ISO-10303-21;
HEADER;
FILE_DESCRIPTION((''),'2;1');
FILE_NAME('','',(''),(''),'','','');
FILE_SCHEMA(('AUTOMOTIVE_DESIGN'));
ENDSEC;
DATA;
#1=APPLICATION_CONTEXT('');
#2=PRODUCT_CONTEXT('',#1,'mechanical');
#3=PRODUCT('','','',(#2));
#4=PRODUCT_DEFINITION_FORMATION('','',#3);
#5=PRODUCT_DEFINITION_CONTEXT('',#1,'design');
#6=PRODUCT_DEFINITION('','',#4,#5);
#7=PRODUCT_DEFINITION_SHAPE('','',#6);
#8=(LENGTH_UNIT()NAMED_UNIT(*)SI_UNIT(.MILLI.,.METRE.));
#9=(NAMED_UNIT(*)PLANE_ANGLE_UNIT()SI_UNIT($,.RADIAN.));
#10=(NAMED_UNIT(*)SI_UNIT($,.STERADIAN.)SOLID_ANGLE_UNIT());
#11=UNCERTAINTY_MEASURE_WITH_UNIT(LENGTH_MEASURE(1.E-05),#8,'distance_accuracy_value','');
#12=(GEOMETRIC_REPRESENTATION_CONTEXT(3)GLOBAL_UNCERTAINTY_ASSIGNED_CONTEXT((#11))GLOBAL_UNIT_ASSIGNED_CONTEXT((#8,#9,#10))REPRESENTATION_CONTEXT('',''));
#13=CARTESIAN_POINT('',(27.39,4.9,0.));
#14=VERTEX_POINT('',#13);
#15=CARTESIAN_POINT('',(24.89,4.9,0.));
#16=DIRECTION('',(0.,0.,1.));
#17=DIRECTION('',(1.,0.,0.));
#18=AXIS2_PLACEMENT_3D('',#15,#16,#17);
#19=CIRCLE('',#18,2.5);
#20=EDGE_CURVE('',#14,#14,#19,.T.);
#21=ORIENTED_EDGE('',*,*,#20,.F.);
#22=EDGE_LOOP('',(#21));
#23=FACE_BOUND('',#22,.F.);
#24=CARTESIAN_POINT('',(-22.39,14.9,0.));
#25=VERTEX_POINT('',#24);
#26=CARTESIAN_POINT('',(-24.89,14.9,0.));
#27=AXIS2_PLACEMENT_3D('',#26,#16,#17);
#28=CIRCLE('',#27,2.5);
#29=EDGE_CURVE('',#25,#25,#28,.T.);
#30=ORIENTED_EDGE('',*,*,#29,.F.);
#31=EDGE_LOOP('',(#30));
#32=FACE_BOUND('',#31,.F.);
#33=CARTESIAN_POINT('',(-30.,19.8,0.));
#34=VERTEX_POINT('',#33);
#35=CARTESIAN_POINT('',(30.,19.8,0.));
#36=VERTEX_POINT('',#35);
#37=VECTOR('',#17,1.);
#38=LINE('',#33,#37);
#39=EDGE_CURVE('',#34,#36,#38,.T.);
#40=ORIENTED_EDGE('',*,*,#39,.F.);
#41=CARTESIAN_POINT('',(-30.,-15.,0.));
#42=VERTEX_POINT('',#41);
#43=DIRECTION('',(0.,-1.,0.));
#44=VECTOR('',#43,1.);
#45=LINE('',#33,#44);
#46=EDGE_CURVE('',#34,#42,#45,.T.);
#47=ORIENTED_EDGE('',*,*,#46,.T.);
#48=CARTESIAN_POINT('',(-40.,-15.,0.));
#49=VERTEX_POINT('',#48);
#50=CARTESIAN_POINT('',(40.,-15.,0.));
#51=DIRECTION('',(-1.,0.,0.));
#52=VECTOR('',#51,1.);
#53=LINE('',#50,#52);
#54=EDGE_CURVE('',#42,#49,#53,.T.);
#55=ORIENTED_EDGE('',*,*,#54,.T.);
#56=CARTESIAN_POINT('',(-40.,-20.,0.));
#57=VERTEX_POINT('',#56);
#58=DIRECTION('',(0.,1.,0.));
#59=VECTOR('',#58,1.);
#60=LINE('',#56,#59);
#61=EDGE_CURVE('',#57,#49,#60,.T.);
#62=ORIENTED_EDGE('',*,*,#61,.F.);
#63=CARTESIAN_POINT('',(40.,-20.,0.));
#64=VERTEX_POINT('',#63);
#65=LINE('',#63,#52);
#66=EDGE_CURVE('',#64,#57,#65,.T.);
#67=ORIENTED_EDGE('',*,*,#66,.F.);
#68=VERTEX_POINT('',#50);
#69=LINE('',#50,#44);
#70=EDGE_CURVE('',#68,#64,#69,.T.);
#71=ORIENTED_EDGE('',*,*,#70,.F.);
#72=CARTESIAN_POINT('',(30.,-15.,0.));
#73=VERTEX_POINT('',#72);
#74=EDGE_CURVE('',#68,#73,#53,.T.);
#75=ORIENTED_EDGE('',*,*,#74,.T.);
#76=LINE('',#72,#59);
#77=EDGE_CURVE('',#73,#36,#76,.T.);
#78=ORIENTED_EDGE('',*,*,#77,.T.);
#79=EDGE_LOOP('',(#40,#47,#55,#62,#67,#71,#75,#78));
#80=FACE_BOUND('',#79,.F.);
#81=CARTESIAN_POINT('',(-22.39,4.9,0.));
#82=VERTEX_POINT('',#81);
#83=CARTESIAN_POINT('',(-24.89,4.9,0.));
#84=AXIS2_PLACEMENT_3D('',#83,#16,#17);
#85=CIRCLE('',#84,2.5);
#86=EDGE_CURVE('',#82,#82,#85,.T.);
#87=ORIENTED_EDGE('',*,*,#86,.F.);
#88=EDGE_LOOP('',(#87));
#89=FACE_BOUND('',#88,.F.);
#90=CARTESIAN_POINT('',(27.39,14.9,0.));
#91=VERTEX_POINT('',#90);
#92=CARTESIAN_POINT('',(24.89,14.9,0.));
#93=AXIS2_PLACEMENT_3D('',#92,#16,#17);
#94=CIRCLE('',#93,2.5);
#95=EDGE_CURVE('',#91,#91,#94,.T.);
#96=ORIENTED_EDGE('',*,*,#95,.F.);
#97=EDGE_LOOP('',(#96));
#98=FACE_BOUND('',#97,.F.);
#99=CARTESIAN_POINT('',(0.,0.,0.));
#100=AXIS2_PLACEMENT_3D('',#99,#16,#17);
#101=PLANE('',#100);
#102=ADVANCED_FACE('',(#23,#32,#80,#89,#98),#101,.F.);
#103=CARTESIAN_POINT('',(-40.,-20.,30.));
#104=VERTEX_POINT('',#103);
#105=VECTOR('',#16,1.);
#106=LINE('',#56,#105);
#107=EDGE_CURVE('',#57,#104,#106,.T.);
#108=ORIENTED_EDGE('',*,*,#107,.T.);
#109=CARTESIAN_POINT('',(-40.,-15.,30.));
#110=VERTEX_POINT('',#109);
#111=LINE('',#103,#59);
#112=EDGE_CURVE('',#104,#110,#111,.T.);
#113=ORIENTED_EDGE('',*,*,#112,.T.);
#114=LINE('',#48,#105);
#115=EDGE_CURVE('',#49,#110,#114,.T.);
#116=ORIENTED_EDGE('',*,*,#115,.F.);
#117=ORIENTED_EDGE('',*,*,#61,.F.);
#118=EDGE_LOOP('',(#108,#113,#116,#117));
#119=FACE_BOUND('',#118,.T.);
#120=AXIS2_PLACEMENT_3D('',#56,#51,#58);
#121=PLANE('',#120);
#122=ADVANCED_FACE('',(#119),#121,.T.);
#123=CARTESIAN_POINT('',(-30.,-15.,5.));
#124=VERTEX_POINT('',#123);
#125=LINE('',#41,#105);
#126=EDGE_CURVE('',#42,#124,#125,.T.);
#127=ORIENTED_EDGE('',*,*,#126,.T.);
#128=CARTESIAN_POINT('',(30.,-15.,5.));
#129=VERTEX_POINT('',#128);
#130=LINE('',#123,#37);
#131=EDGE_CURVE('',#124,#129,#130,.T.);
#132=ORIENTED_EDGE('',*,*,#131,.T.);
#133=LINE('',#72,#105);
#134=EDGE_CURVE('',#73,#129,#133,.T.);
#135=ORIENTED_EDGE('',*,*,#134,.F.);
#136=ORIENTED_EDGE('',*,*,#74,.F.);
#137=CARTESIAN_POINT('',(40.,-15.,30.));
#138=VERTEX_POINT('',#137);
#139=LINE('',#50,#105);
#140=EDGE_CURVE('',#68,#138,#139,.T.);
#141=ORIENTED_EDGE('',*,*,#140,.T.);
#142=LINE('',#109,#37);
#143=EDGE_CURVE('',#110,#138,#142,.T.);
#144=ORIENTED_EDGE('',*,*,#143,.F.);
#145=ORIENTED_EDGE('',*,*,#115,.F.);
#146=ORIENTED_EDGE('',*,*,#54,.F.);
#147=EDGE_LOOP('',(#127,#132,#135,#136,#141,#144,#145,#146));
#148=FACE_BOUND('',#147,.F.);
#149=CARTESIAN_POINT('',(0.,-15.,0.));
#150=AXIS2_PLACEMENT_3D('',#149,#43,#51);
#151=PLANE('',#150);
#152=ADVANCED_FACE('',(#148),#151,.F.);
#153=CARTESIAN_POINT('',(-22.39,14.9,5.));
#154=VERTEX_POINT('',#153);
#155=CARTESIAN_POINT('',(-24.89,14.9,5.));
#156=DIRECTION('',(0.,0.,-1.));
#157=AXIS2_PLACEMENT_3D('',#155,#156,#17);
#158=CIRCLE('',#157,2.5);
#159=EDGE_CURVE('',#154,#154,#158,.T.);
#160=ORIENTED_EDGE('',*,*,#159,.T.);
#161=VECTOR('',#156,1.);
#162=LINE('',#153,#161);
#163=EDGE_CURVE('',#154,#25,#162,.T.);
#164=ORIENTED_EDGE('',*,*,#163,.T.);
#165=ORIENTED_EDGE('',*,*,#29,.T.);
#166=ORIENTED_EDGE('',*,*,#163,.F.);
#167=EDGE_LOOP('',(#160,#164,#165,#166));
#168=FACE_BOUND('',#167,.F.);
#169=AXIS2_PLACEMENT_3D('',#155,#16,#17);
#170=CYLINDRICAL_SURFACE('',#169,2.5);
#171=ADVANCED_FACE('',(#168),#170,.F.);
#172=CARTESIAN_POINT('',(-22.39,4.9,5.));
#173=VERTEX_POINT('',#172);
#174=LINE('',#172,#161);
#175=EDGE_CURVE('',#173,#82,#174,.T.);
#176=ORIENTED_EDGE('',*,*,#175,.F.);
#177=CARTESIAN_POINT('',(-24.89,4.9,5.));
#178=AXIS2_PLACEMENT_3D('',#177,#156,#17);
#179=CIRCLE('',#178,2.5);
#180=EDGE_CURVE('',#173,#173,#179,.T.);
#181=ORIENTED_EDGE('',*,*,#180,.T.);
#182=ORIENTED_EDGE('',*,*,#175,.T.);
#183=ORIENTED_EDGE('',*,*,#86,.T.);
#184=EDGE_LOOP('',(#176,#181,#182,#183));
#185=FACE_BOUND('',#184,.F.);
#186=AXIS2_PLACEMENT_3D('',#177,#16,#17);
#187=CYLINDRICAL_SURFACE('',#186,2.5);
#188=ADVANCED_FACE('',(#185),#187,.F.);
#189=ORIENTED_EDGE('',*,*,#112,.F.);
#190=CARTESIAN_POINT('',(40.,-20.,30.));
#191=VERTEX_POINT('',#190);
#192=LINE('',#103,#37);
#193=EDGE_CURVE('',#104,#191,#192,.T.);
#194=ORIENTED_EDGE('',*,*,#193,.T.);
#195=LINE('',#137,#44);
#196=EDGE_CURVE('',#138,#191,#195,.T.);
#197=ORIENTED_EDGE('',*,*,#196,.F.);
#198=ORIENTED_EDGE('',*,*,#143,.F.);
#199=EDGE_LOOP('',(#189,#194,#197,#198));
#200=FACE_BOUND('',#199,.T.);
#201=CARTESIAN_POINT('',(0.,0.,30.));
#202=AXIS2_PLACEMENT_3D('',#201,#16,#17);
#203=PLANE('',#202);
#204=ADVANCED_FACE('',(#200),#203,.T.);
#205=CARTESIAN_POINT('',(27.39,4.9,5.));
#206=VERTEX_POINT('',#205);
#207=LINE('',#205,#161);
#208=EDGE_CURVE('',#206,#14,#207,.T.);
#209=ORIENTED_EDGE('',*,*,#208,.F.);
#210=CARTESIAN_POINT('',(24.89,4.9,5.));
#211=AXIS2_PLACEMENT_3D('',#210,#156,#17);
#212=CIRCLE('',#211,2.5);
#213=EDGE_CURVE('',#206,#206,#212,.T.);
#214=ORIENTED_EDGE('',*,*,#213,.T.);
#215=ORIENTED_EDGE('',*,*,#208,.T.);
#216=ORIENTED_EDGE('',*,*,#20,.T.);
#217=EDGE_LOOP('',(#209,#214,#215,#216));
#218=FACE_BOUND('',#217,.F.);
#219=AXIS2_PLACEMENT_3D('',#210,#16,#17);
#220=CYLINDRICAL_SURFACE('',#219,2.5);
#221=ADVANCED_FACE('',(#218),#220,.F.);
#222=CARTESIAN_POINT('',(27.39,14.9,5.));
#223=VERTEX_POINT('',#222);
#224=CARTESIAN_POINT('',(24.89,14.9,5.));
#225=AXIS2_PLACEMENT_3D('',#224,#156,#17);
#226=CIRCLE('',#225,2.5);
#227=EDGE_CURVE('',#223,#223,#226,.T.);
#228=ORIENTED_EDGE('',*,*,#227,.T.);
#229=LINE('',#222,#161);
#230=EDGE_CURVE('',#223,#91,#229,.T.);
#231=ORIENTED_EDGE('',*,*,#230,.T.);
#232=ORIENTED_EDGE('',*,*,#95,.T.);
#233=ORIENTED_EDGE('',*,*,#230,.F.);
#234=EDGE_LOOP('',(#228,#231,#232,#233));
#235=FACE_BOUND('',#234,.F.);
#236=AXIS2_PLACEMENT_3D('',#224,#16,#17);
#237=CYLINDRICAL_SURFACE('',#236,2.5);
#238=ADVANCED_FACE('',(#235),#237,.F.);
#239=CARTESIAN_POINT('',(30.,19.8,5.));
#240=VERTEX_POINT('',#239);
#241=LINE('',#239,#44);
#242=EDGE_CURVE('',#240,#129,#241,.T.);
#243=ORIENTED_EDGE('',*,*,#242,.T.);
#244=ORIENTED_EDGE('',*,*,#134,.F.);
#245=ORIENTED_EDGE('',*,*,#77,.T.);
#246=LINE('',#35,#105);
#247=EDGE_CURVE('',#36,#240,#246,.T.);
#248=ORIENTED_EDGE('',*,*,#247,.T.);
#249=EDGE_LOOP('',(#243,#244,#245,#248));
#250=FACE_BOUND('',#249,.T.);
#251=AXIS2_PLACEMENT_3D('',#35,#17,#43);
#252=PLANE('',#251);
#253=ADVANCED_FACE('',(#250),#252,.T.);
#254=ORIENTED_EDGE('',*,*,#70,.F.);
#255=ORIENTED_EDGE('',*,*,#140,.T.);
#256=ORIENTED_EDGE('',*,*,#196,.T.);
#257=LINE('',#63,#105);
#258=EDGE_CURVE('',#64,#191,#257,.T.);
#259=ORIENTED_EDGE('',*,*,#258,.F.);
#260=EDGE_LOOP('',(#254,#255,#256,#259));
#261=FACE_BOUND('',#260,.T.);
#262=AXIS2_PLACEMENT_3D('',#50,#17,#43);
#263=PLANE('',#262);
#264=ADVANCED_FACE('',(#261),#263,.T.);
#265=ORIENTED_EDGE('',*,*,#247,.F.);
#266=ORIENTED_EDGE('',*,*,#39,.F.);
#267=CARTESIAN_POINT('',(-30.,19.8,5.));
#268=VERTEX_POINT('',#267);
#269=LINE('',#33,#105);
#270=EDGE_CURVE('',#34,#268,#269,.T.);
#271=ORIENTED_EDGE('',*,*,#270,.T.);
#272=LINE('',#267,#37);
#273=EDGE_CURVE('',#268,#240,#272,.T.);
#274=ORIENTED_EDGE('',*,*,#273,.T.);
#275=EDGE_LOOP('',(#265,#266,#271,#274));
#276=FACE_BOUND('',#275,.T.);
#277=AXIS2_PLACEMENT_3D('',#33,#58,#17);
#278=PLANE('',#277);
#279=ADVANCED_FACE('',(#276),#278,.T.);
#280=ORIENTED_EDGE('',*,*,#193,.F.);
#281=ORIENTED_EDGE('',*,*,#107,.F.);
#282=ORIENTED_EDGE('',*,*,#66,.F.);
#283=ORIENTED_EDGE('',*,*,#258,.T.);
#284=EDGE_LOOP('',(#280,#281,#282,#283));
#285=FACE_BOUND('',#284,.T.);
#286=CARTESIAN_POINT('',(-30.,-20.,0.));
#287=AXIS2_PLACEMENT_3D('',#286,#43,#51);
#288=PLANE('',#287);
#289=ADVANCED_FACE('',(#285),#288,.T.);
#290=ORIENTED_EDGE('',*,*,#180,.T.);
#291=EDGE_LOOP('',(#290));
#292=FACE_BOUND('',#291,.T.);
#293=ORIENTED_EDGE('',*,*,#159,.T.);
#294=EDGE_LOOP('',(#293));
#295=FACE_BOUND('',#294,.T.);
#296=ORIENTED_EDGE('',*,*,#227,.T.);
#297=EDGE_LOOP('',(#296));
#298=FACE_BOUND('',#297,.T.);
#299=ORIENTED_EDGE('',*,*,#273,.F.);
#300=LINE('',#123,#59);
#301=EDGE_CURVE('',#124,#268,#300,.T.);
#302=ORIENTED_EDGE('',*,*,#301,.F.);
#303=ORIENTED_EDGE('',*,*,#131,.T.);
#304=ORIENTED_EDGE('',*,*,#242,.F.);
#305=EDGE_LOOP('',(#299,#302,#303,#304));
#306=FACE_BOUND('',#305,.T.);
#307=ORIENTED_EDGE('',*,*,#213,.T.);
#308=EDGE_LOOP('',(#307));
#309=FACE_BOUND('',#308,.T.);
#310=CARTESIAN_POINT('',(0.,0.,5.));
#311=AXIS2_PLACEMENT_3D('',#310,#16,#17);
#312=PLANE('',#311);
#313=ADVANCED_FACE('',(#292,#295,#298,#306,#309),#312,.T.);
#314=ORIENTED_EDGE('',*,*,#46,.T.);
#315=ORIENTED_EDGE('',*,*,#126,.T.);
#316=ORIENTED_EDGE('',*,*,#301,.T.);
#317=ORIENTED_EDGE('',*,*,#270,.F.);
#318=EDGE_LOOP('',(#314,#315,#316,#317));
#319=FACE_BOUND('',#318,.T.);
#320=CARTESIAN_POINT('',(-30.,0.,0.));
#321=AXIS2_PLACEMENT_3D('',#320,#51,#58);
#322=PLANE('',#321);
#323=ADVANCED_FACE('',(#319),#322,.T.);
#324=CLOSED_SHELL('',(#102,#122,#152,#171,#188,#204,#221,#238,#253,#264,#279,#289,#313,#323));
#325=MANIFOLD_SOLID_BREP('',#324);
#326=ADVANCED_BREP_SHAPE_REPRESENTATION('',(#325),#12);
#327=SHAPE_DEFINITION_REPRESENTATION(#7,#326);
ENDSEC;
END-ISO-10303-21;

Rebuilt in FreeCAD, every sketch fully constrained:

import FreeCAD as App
import Part
import Sketcher

V = App.Vector


def add_polygon(sketch, points):
    """Adds a closed chain of lines whose ends are joined by coincident constraints."""
    first, n = sketch.GeometryCount, len(points)
    for a, b in zip(points, points[1:] + points[:1]):
        sketch.addGeometry(Part.LineSegment(App.Vector(*a, 0), App.Vector(*b, 0)), False)
    for i in range(n):
        sketch.addConstraint(Sketcher.Constraint("Coincident", first + i, 2, first + (i + 1) % n, 1))

doc = App.newDocument("Part")
params = doc.addObject("Spreadsheet::Sheet", "Params")
for row, (alias, value) in enumerate([
    ("sketch1_width", "60 mm"),
    ("pad1_length", "5 mm"),
    ("sketch2_width", "80 mm"),
    ("sketch2_height", "5 mm"),
    ("pad2_length", "30 mm"),
    ("sketch3_diameter", "5 mm"),
    ("pocket1_length", "30 mm"),
], start=1):
    params.set(f"A{row}", alias)
    params.set(f"B{row}", "=" + value)
    params.setAlias(f"B{row}", alias)

body = doc.addObject("PartDesign::Body", "Body")

sketch1 = body.newObject("Sketcher::SketchObject", "Sketch")
sketch1.AttachmentSupport = (doc.getObject("XY_Plane"), [""])
sketch1.MapMode = "FlatFace"
add_polygon(sketch1, [(30, 20), (-30, 20), (-30, -15), (30, -15)])
sketch1.addConstraint([
    Sketcher.Constraint("Horizontal", 0),
    Sketcher.Constraint("Vertical", 1),
    Sketcher.Constraint("Horizontal", 2),
    Sketcher.Constraint("Vertical", 3),
    Sketcher.Constraint("DistanceX", 0, 2, 0, 1, 60.0),
    Sketcher.Constraint("DistanceY", 1, 2, -1, 1, 15.0),
    Sketcher.Constraint("DistanceY", -1, 1, 0, 2, 19.8),
    Sketcher.Constraint("DistanceX", 0, 2, -1, 1, 30.0),
])
sketch1.setExpression("Constraints[8]", "Params.sketch1_width")
pad1 = body.newObject("PartDesign::Pad", "Pad")
pad1.Profile = sketch1
pad1.setExpression("Length", "Params.pad1_length")

sketch2 = body.newObject("Sketcher::SketchObject", "Sketch001")
sketch2.AttachmentSupport = (doc.getObject("XY_Plane"), [""])
sketch2.MapMode = "FlatFace"
add_polygon(sketch2, [(-40, -15), (-40, -20), (40, -20), (40, -15)])
sketch2.addConstraint([
    Sketcher.Constraint("Vertical", 0),
    Sketcher.Constraint("Horizontal", 1),
    Sketcher.Constraint("Vertical", 2),
    Sketcher.Constraint("Horizontal", 3),
    Sketcher.Constraint("DistanceX", 1, 1, 1, 2, 80.0),
    Sketcher.Constraint("DistanceY", 0, 2, 0, 1, 5.0),
    Sketcher.Constraint("DistanceY", 2, 2, -1, 1, 15.0),
    Sketcher.Constraint("DistanceX", 0, 2, -1, 1, 40.0),
])
sketch2.setExpression("Constraints[8]", "Params.sketch2_width")
sketch2.setExpression("Constraints[9]", "Params.sketch2_height")
pad2 = body.newObject("PartDesign::Pad", "Pad001")
pad2.Profile = sketch2
pad2.setExpression("Length", "Params.pad2_length")

sketch3 = body.newObject("Sketcher::SketchObject", "Sketch002")
sketch3.AttachmentSupport = (doc.getObject("XY_Plane"), [""])
sketch3.MapMode = "FlatFace"
sketch3.AttachmentOffset = App.Placement(V(0, 0, 5), App.Rotation())
sketch3.addGeometry([
    Part.Circle(V(-24.9, 4.9, 0), V(0, 0, 1), 2.5),
    Part.Circle(V(-24.9, 14.9, 0), V(0, 0, 1), 2.5),
    Part.Circle(V(24.9, 4.9, 0), V(0, 0, 1), 2.5),
    Part.Circle(V(24.9, 14.9, 0), V(0, 0, 1), 2.5),
], False)
sketch3.addConstraint([
    Sketcher.Constraint("Equal", 0, 1),
    Sketcher.Constraint("Equal", 1, 2),
    Sketcher.Constraint("Equal", 2, 3),
    Sketcher.Constraint("Symmetric", 0, 3, 2, 3, -2),
    Sketcher.Constraint("Symmetric", 1, 3, 3, 3, -2),
    Sketcher.Constraint("Vertical", 0, 3, 1, 3),
    Sketcher.Constraint("Diameter", 0, 5.0),
    Sketcher.Constraint("DistanceY", -1, 1, 0, 3, 4.9),
    Sketcher.Constraint("DistanceX", 0, 3, -1, 1, 24.89),
    Sketcher.Constraint("DistanceY", 0, 3, 1, 3, 10.0),
])
sketch3.setExpression("Constraints[6]", "Params.sketch3_diameter")
pocket1 = body.newObject("PartDesign::Pocket", "Pocket")
pocket1.Profile = sketch3
pocket1.setExpression("Length", "Params.pocket1_length")

doc.recompute()
